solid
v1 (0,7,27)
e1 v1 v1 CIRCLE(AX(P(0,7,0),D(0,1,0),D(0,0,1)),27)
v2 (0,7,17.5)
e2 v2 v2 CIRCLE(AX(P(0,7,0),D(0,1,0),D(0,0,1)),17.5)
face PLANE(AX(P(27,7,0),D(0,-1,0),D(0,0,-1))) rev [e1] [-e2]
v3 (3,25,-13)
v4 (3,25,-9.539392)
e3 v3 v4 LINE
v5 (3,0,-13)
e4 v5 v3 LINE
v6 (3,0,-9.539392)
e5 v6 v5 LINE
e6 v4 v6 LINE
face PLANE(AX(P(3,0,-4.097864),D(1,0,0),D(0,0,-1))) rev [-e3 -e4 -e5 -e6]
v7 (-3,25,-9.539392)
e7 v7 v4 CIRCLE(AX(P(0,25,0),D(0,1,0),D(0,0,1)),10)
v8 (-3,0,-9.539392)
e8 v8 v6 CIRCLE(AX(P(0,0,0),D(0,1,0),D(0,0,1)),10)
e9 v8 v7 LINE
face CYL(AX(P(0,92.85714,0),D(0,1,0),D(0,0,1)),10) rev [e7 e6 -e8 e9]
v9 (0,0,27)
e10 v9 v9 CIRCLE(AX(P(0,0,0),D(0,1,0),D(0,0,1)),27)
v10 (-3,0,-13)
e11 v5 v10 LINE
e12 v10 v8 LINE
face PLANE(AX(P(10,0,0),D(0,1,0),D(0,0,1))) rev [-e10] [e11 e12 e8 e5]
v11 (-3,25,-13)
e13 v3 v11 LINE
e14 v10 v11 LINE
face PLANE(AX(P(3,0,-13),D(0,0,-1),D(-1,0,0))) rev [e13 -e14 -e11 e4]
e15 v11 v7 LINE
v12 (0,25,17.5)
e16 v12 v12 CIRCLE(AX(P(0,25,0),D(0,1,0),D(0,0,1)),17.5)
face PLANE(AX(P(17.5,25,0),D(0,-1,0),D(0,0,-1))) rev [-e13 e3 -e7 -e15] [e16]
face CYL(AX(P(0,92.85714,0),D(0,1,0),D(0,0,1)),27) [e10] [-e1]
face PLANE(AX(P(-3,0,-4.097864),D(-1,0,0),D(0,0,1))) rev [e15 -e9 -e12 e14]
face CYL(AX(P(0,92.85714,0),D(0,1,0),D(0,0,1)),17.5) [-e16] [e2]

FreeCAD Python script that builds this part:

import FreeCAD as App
import Part
import Sketcher
from FreeCAD import Vector

doc = App.newDocument("Part")
body = doc.addObject("PartDesign::Body", "Body")

# Sketch on XY plane
sketch1 = body.newObject("Sketcher::SketchObject", "Sketch")
sketch1.AttachmentSupport = (doc.getObject("XY_Plane"), [""])
sketch1.MapMode = "FlatFace"
sketch1.addGeometry([
    Part.LineSegment(Vector(10, 0, 0), Vector(27, 0, 0)),  # 0
    Part.LineSegment(Vector(27, 0, 0), Vector(27, 7, 0)),  # 1
    Part.LineSegment(Vector(27, 7, 0), Vector(17.5, 7, 0)),  # 2
    Part.LineSegment(Vector(17.5, 7, 0), Vector(17.5, 25, 0)),  # 3
    Part.LineSegment(Vector(17.5, 25, 0), Vector(10, 25, 0)),  # 4
    Part.LineSegment(Vector(10, 25, 0), Vector(10, 0, 0)),  # 5
], False)
sketch1.addConstraint([
    Sketcher.Constraint("Coincident", 0, 2, 1, 1),
    Sketcher.Constraint("Coincident", 1, 2, 2, 1),
    Sketcher.Constraint("Coincident", 2, 2, 3, 1),
    Sketcher.Constraint("Coincident", 3, 2, 4, 1),
    Sketcher.Constraint("Coincident", 4, 2, 5, 1),
    Sketcher.Constraint("Coincident", 5, 2, 0, 1),
    Sketcher.Constraint("Horizontal", 0),
    Sketcher.Constraint("Vertical", 1),
    Sketcher.Constraint("Horizontal", 2),
    Sketcher.Constraint("Vertical", 3),
    Sketcher.Constraint("Horizontal", 4),
    Sketcher.Constraint("Vertical", 5),
    Sketcher.Constraint("PointOnObject", 0, 2, -1),
    Sketcher.Constraint("DistanceX", 0, 1, 0, 2, 17.0),
    Sketcher.Constraint("DistanceY", 1, 1, 1, 2, 7.0),
    Sketcher.Constraint("DistanceY", 3, 1, 3, 2, 18.0),
    Sketcher.Constraint("DistanceX", 2, 2, 2, 1, 9.5),
    Sketcher.Constraint("DistanceX", -1, 1, 0, 2, 27.0),
])
revolution = body.newObject("PartDesign::Revolution", "Revolution")
revolution.Profile = sketch1
revolution.ReferenceAxis = (sketch1, ["V_Axis"])
revolution.Angle = 360

# Sketch on XZ plane
sketch2 = body.newObject("Sketcher::SketchObject", "Sketch001")
sketch2.AttachmentSupport = (doc.getObject("XZ_Plane"), [""])
sketch2.MapMode = "FlatFace"
sketch2.AttachmentOffset = App.Placement(Vector(0, 0, -25), App.Rotation())
sketch2.addGeometry([
    Part.LineSegment(Vector(-3, -13, 0), Vector(-3, -4.097864, 0)),
    Part.LineSegment(Vector(-3, -4.097864, 0), Vector(3, -4.097864, 0)),
    Part.LineSegment(Vector(3, -4.097864, 0), Vector(3, -13, 0)),
    Part.LineSegment(Vector(3, -13, 0), Vector(-3, -13, 0)),
], False)
sketch2.addConstraint([
    Sketcher.Constraint("Coincident", 0, 2, 1, 1),
    Sketcher.Constraint("Coincident", 1, 2, 2, 1),
    Sketcher.Constraint("Coincident", 2, 2, 3, 1),
    Sketcher.Constraint("Coincident", 3, 2, 0, 1),
    Sketcher.Constraint("Vertical", 0),
    Sketcher.Constraint("Horizontal", 1),
    Sketcher.Constraint("Vertical", 2),
    Sketcher.Constraint("Horizontal", 3),
    Sketcher.Constraint("DistanceX", 1, 1, 1, 2, 6.0),
    Sketcher.Constraint("DistanceX", 0, 2, -1, 1, 3.0),
    Sketcher.Constraint("DistanceY", 2, 2, -1, 1, 13.0),
    Sketcher.Constraint("DistanceY", 0, 1, 0, 2, 8.902136),
])
pocket1 = body.newObject("PartDesign::Pocket", "Pocket")
pocket1.Profile = sketch2
pocket1.Type = "ThroughAll"
pocket1.Reversed = True

doc.recompute()
